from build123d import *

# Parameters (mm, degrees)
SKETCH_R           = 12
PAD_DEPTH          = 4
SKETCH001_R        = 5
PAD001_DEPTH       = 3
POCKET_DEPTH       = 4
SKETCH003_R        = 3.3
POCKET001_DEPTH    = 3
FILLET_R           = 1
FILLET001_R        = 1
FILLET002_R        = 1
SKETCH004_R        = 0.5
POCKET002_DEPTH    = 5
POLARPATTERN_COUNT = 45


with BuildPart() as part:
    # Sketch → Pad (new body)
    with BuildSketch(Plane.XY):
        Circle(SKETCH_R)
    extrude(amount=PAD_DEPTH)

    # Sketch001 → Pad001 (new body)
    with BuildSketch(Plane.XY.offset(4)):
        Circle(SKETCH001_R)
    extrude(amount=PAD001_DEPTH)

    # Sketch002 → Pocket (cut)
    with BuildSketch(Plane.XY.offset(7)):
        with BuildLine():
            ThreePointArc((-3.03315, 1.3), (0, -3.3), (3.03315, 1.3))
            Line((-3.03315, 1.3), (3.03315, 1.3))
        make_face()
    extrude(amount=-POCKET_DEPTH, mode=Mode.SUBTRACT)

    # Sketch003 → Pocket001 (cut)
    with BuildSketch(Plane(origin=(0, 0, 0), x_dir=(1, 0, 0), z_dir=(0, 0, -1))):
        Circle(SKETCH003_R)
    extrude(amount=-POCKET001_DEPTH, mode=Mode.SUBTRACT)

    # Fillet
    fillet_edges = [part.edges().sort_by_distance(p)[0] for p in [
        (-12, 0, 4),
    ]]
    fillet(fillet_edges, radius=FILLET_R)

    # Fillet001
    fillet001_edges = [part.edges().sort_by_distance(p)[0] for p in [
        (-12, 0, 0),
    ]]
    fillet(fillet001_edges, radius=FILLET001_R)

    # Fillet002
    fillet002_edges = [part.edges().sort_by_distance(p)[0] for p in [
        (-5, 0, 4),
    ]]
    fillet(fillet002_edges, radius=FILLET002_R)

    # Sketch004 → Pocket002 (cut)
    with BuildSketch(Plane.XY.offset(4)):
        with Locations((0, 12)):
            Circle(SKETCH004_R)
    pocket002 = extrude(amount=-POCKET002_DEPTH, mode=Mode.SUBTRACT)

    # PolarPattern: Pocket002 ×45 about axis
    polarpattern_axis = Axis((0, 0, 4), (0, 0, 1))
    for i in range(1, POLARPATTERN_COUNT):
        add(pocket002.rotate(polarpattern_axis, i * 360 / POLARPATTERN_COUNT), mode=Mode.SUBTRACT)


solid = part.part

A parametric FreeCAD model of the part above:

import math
import FreeCAD as App
import Part
import Sketcher
Q = App.Units.Quantity


def edges_at(feature, points):
    """Names of the edges that pass closest to the given points."""
    edges = feature.Shape.Edges
    near = lambda p: min(range(len(edges)), key=lambda i: edges[i].distToShape(Part.Vertex(*p))[0])
    return sorted({f"Edge{near(p) + 1}" for p in points})

doc = App.newDocument("Part")
body = doc.addObject("PartDesign::Body", "Body")

sketch1 = body.newObject("Sketcher::SketchObject", "Sketch")
sketch1.AttachmentSupport = (doc.getObject("XY_Plane"), [""])
sketch1.MapMode = "FlatFace"
sketch1.addGeometry(Part.Circle(App.Vector(0, 0, 0), App.Vector(0, 0, 1), 12), False)
sketch1.addConstraint([
    Sketcher.Constraint("Coincident", 0, 3, -1, 1),
    Sketcher.Constraint("Diameter", 0, Q("24 mm")),
])
pad1 = body.newObject("PartDesign::Pad", "Pad")
pad1.Profile = sketch1
pad1.Length = 4

sketch2 = body.newObject("Sketcher::SketchObject", "Sketch001")
sketch2.AttachmentSupport = (doc.getObject("XY_Plane"), [""])
sketch2.MapMode = "FlatFace"
sketch2.AttachmentOffset = App.Placement(App.Vector(0, 0, 4), App.Rotation())
sketch2.addGeometry(Part.Circle(App.Vector(0, 0, 0), App.Vector(0, 0, 1), 5), False)
sketch2.addConstraint([
    Sketcher.Constraint("Coincident", 0, 3, -1, 1),
    Sketcher.Constraint("Diameter", 0, Q("10 mm")),
])
pad2 = body.newObject("PartDesign::Pad", "Pad001")
pad2.Profile = sketch2
pad2.Length = 3

sketch3 = body.newObject("Sketcher::SketchObject", "Sketch002")
sketch3.AttachmentSupport = (doc.getObject("XY_Plane"), [""])
sketch3.MapMode = "FlatFace"
sketch3.AttachmentOffset = App.Placement(App.Vector(0, 0, 7), App.Rotation())
sketch3.addGeometry([
    Part.ArcOfCircle(Part.Circle(App.Vector(0, 0, 0), App.Vector(0, 0, 1), 3.3), math.radians(157), math.radians(383)),
    Part.LineSegment(App.Vector(3, 1.3, 0), App.Vector(-3, 1.3, 0)),
], False)
sketch3.addConstraint([
    Sketcher.Constraint("Coincident", 0, 1, 1, 2),
    Sketcher.Constraint("Coincident", 1, 1, 0, 2),
    Sketcher.Constraint("Horizontal", 1),
    Sketcher.Constraint("Coincident", 0, 3, -1, 1),
    Sketcher.Constraint("Radius", 0, Q("3.3 mm")),
    Sketcher.Constraint("DistanceY", -1, 1, 0, 1, Q("1.3 mm")),
])
pocket1 = body.newObject("PartDesign::Pocket", "Pocket")
pocket1.Profile = sketch3
pocket1.Length = 4

sketch4 = body.newObject("Sketcher::SketchObject", "Sketch003")
sketch4.AttachmentSupport = (doc.getObject("XY_Plane"), [""])
sketch4.MapMode = "FlatFace"
sketch4.addGeometry(Part.Circle(App.Vector(0, 0, 0), App.Vector(0, 0, 1), 3.3), False)
sketch4.addConstraint([
    Sketcher.Constraint("Coincident", 0, 3, -1, 1),
    Sketcher.Constraint("Diameter", 0, Q("6.6 mm")),
])
pocket2 = body.newObject("PartDesign::Pocket", "Pocket001")
pocket2.Profile = sketch4
pocket2.Length = 3
pocket2.Reversed = True
doc.recompute()

fillet = body.newObject("PartDesign::Fillet", "Fillet")
fillet.Base = (pocket2, edges_at(pocket2, [(-12, 0, 4)]))
fillet.Radius = 1
doc.recompute()

fillet2 = body.newObject("PartDesign::Fillet", "Fillet001")
fillet2.Base = (fillet, edges_at(fillet, [(-12, 0, 0)]))
fillet2.Radius = 1
doc.recompute()

fillet3 = body.newObject("PartDesign::Fillet", "Fillet002")
fillet3.Base = (fillet2, edges_at(fillet2, [(-5, 0, 4)]))
fillet3.Radius = 1

sketch5 = body.newObject("Sketcher::SketchObject", "Sketch004")
sketch5.AttachmentSupport = (doc.getObject("XY_Plane"), [""])
sketch5.MapMode = "FlatFace"
sketch5.AttachmentOffset = App.Placement(App.Vector(0, 0, 4), App.Rotation())
sketch5.addGeometry(Part.Circle(App.Vector(0, 12, 0), App.Vector(0, 0, 1), 0.5), False)
sketch5.addConstraint([
    Sketcher.Constraint("PointOnObject", 0, 3, -2),
    Sketcher.Constraint("Diameter", 0, Q("1 mm")),
    Sketcher.Constraint("DistanceY", -1, 1, 0, 3, Q("12 mm")),
])
pocket3 = body.newObject("PartDesign::Pocket", "Pocket002")
pocket3.Profile = sketch5
pocket3.Length = 5
doc.recompute()

polarpattern = body.newObject("PartDesign::PolarPattern", "PolarPattern")
polarpattern.Originals = [pocket3]
polarpattern.Axis = (doc.getObject("Z_Axis"), [""])
polarpattern.Angle = 360
polarpattern.Occurrences = 45
body.Tip = polarpattern

doc.recompute()
